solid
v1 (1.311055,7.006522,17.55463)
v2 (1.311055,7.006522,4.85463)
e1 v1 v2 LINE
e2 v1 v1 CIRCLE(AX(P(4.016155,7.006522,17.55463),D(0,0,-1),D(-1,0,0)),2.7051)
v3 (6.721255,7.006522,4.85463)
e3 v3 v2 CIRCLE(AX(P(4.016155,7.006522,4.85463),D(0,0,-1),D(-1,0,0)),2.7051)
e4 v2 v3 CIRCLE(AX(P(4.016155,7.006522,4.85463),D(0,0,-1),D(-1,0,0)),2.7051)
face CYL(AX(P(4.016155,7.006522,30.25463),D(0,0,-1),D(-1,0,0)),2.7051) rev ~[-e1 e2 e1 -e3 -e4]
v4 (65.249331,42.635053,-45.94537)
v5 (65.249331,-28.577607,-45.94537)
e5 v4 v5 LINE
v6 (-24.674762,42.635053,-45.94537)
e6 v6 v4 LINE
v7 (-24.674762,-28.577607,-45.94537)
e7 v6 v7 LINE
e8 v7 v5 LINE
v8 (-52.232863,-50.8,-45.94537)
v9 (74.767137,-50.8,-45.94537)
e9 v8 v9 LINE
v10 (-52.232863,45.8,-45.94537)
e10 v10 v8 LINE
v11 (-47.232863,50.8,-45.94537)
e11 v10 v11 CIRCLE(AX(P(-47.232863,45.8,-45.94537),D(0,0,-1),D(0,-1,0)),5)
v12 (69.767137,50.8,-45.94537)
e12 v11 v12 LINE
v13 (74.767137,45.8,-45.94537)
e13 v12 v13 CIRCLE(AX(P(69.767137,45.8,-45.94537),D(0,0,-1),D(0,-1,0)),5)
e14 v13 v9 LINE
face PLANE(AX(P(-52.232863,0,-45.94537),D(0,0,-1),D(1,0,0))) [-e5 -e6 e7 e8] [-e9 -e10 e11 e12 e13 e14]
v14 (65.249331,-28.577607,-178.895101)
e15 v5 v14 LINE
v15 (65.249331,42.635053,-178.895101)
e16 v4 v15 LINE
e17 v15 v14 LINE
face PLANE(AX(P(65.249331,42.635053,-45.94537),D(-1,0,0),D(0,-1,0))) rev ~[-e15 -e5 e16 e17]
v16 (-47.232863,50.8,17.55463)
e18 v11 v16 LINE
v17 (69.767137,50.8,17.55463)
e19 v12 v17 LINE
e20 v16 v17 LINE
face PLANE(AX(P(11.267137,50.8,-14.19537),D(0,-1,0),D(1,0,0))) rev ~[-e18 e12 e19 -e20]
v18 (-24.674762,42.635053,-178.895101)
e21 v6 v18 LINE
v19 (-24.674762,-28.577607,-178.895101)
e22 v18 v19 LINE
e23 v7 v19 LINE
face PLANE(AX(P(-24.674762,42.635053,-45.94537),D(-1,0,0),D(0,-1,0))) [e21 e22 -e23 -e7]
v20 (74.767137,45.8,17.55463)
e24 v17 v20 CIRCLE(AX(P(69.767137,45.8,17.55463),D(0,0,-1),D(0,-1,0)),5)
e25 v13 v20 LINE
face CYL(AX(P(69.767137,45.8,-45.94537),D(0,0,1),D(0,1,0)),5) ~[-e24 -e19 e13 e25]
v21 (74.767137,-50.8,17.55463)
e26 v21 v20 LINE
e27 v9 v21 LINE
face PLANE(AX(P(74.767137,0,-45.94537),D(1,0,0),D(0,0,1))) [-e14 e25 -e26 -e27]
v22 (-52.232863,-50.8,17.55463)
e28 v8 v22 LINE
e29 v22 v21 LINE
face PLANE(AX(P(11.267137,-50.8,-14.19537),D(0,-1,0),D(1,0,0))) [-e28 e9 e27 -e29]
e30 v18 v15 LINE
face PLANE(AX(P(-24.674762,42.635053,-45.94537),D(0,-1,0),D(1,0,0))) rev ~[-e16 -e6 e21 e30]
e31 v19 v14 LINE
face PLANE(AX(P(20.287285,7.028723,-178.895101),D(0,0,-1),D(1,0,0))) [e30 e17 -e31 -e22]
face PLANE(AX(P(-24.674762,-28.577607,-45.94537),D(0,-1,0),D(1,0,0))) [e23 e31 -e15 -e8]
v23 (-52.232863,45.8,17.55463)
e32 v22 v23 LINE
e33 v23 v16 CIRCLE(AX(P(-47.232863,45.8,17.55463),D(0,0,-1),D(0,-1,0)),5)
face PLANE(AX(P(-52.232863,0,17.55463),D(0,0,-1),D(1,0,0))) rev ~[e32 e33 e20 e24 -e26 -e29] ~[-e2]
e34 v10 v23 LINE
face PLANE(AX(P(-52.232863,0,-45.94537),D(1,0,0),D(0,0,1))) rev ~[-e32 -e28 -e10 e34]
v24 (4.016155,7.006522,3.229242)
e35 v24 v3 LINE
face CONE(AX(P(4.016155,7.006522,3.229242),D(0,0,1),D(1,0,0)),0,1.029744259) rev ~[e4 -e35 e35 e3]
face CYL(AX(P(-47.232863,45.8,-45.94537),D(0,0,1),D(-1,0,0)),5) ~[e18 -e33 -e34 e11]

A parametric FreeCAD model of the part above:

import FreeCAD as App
import Part
import Sketcher

V = App.Vector
Q = App.Units.Quantity


def edges_at(feature, points):
    """Names of the edges that pass closest to the given points."""
    edges = feature.Shape.Edges
    near = lambda p: min(range(len(edges)), key=lambda i: edges[i].distToShape(Part.Vertex(*p))[0])
    return sorted({f"Edge{near(p) + 1}" for p in points})

doc = App.newDocument("Part")
body = doc.addObject("PartDesign::Body", "Body")

sketch1 = body.newObject("Sketcher::SketchObject", "Sketch")
sketch1.AttachmentSupport = (doc.getObject("XZ_Plane"), [""])
sketch1.MapMode = "FlatFace"
sketch1.addGeometry([
    Part.LineSegment(V(-52, 18, 0), V(-52, -46, 0)),
    Part.LineSegment(V(-52, -46, 0), V(75, -46, 0)),
    Part.LineSegment(V(75, -46, 0), V(75, 18, 0)),
    Part.LineSegment(V(75, 18, 0), V(-52, 18, 0)),
], False)
sketch1.addConstraint([
    Sketcher.Constraint("Coincident", 0, 2, 1, 1),
    Sketcher.Constraint("Coincident", 1, 2, 2, 1),
    Sketcher.Constraint("Coincident", 2, 2, 3, 1),
    Sketcher.Constraint("Coincident", 3, 2, 0, 1),
    Sketcher.Constraint("Vertical", 0),
    Sketcher.Constraint("Horizontal", 1),
    Sketcher.Constraint("Vertical", 2),
    Sketcher.Constraint("Horizontal", 3),
    Sketcher.Constraint("DistanceX", 1, 1, 1, 2, Q("5 in")),
    Sketcher.Constraint("DistanceY", 0, 2, 0, 1, Q("2.5 in")),
    Sketcher.Constraint("DistanceY", 0, 2, -1, 1, Q("45.94537 mm")),
    Sketcher.Constraint("DistanceX", 0, 2, -1, 1, Q("52.232863 mm")),
])
pad1 = body.newObject("PartDesign::Pad", "Pad")
pad1.Profile = sketch1
pad1.Length = Q("4 in")
pad1.Midplane = True

sketch2 = body.newObject("Sketcher::SketchObject", "Sketch001")
sketch2.AttachmentSupport = (doc.getObject("XY_Plane"), [""])
sketch2.MapMode = "FlatFace"
sketch2.AttachmentOffset = App.Placement(V(0, 0, 17.55463), App.Rotation())
sketch2.addGeometry(Part.Circle(V(4, 7, 0), V(0, 0, 1), 2.7), False)
sketch2.addConstraint([
    Sketcher.Constraint("Diameter", 0, Q("0.213 in")),
    Sketcher.Constraint("DistanceX", -1, 1, 0, 3, Q("4.016155 mm")),
    Sketcher.Constraint("DistanceY", -1, 1, 0, 3, Q("7.006522 mm")),
])
doc.recompute()
hole = body.newObject("PartDesign::Hole", "Hole")
hole.Profile = sketch2
hole.ThreadType = "None"
hole.Diameter = Q("0.213 in")
hole.DepthType = "Dimension"
hole.Depth = Q("0.5 in")
hole.DrillPoint = "Angled"
hole.DrillPointAngle = 118

sketch3 = body.newObject("Sketcher::SketchObject", "Sketch002")
sketch3.AttachmentSupport = (doc.getObject("XY_Plane"), [""])
sketch3.MapMode = "FlatFace"
sketch3.AttachmentOffset = App.Placement(V(0, 0, -45.94537), App.Rotation())
sketch3.addGeometry([
    Part.LineSegment(V(-25, -29, 0), V(-25, 43, 0)),
    Part.LineSegment(V(-25, 43, 0), V(65, 43, 0)),
    Part.LineSegment(V(65, 43, 0), V(65, -29, 0)),
    Part.LineSegment(V(65, -29, 0), V(-25, -29, 0)),
], False)
sketch3.addConstraint([
    Sketcher.Constraint("Coincident", 0, 2, 1, 1),
    Sketcher.Constraint("Coincident", 1, 2, 2, 1),
    Sketcher.Constraint("Coincident", 2, 2, 3, 1),
    Sketcher.Constraint("Coincident", 3, 2, 0, 1),
    Sketcher.Constraint("Vertical", 0),
    Sketcher.Constraint("Horizontal", 1),
    Sketcher.Constraint("Vertical", 2),
    Sketcher.Constraint("Horizontal", 3),
    Sketcher.Constraint("DistanceY", 0, 1, 0, 2, Q("71.212661 mm")),
    Sketcher.Constraint("DistanceX", 1, 1, 1, 2, Q("89.924093 mm")),
    Sketcher.Constraint("DistanceX", -1, 1, 1, 2, Q("65.249331 mm")),
    Sketcher.Constraint("DistanceY", -1, 1, 0, 2, Q("42.635053 mm")),
])
pad2 = body.newObject("PartDesign::Pad", "Pad001")
pad2.Profile = sketch3
pad2.Length = 132.94973
pad2.Reversed = True
doc.recompute()

fillet = body.newObject("PartDesign::Fillet", "Fillet")
fillet.Base = (pad2, edges_at(pad2, [(74.767, 50.8, -14.195), (-52.233, 50.8, -14.195)]))
fillet.Radius = 5

doc.recompute()
